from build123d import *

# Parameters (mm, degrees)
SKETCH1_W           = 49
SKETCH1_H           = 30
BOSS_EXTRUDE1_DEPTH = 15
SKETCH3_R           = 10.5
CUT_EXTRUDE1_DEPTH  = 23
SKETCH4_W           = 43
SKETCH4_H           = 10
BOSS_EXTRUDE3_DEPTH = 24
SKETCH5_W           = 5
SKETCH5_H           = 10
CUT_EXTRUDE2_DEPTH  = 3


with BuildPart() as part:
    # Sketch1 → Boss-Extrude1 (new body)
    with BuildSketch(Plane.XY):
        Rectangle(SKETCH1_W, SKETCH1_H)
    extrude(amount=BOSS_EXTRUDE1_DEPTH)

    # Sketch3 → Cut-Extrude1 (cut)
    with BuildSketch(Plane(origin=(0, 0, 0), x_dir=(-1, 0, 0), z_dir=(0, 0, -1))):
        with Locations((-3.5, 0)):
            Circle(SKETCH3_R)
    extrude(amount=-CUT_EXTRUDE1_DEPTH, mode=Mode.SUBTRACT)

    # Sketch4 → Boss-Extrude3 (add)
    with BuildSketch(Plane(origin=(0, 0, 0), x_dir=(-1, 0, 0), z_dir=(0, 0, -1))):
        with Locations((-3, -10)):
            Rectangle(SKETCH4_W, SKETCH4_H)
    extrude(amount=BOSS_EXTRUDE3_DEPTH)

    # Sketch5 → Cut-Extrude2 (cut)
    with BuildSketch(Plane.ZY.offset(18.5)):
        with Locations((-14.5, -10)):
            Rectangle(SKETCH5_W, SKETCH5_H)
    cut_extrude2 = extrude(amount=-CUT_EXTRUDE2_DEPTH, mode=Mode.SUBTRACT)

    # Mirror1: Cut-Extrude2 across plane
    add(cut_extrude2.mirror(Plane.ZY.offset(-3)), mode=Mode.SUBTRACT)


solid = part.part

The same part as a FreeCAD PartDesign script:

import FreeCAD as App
import Part
import Sketcher

V = App.Vector
Q = App.Units.Quantity

doc = App.newDocument("Part")
body = doc.addObject("PartDesign::Body", "Body")

# Sketch on XY plane
sketch1 = body.newObject("Sketcher::SketchObject", "Sketch")
sketch1.AttachmentSupport = (doc.getObject("XY_Plane"), [""])
sketch1.MapMode = "FlatFace"
sketch1.addGeometry([
    Part.LineSegment(V(-24, 15, 0), V(-24, -15, 0)),
    Part.LineSegment(V(-24, -15, 0), V(24, -15, 0)),
    Part.LineSegment(V(24, -15, 0), V(24, 15, 0)),
    Part.LineSegment(V(24, 15, 0), V(-24, 15, 0)),
], False)
sketch1.addConstraint([
    Sketcher.Constraint("Coincident", 0, 2, 1, 1),
    Sketcher.Constraint("Coincident", 1, 2, 2, 1),
    Sketcher.Constraint("Coincident", 2, 2, 3, 1),
    Sketcher.Constraint("Coincident", 3, 2, 0, 1),
    Sketcher.Constraint("Vertical", 0),
    Sketcher.Constraint("Horizontal", 1),
    Sketcher.Constraint("Vertical", 2),
    Sketcher.Constraint("Horizontal", 3),
    Sketcher.Constraint("Symmetric", 0, 2, 2, 2, -1, 1),
    Sketcher.Constraint("DistanceX", 1, 1, 1, 2, Q("49 mm")),
    Sketcher.Constraint("DistanceY", 0, 2, 0, 1, Q("30 mm")),
])
pad1 = body.newObject("PartDesign::Pad", "Pad")
pad1.Profile = sketch1
pad1.Length = 15

# Sketch on XY plane
sketch2 = body.newObject("Sketcher::SketchObject", "Sketch001")
sketch2.AttachmentSupport = (doc.getObject("XY_Plane"), [""])
sketch2.MapMode = "FlatFace"
sketch2.addGeometry(Part.Circle(V(4, 0, 0), V(0, 0, 1), 10), False)
sketch2.addConstraint([
    Sketcher.Constraint("PointOnObject", 0, 3, -1),
    Sketcher.Constraint("Diameter", 0, Q("21 mm")),
    Sketcher.Constraint("DistanceX", -1, 1, 0, 3, Q("3.5 mm")),
])
pocket1 = body.newObject("PartDesign::Pocket", "Pocket")
pocket1.Profile = sketch2
pocket1.Length = 23
pocket1.Reversed = True

# Sketch on XY plane
sketch3 = body.newObject("Sketcher::SketchObject", "Sketch002")
sketch3.AttachmentSupport = (doc.getObject("XY_Plane"), [""])
sketch3.MapMode = "FlatFace"
sketch3.addGeometry([
    Part.LineSegment(V(24, -5, 0), V(24, -15, 0)),
    Part.LineSegment(V(24, -15, 0), V(-18, -15, 0)),
    Part.LineSegment(V(-18, -15, 0), V(-18, -5, 0)),
    Part.LineSegment(V(-18, -5, 0), V(24, -5, 0)),
], False)
sketch3.addConstraint([
    Sketcher.Constraint("Coincident", 0, 2, 1, 1),
    Sketcher.Constraint("Coincident", 1, 2, 2, 1),
    Sketcher.Constraint("Coincident", 2, 2, 3, 1),
    Sketcher.Constraint("Coincident", 3, 2, 0, 1),
    Sketcher.Constraint("Vertical", 0),
    Sketcher.Constraint("Horizontal", 1),
    Sketcher.Constraint("Vertical", 2),
    Sketcher.Constraint("Horizontal", 3),
    Sketcher.Constraint("DistanceX", 1, 2, 1, 1, Q("43 mm")),
    Sketcher.Constraint("DistanceY", 0, 2, 0, 1, Q("10 mm")),
    Sketcher.Constraint("DistanceY", 0, 2, -1, 1, Q("15 mm")),
    Sketcher.Constraint("DistanceX", -1, 1, 0, 2, Q("24.5 mm")),
])
pad2 = body.newObject("PartDesign::Pad", "Pad001")
pad2.Profile = sketch3
pad2.Length = 24
pad2.Reversed = True

# Sketch on YZ plane
sketch4 = body.newObject("Sketcher::SketchObject", "Sketch003")
sketch4.AttachmentSupport = (doc.getObject("YZ_Plane"), [""])
sketch4.MapMode = "FlatFace"
sketch4.AttachmentOffset = App.Placement(V(0, 0, -18.5), App.Rotation())
sketch4.addGeometry([
    Part.LineSegment(V(-5, -17, 0), V(-15, -17, 0)),
    Part.LineSegment(V(-15, -17, 0), V(-15, -12, 0)),
    Part.LineSegment(V(-15, -12, 0), V(-5, -12, 0)),
    Part.LineSegment(V(-5, -12, 0), V(-5, -17, 0)),
], False)
sketch4.addConstraint([
    Sketcher.Constraint("Coincident", 0, 2, 1, 1),
    Sketcher.Constraint("Coincident", 1, 2, 2, 1),
    Sketcher.Constraint("Coincident", 2, 2, 3, 1),
    Sketcher.Constraint("Coincident", 3, 2, 0, 1),
    Sketcher.Constraint("Horizontal", 0),
    Sketcher.Constraint("Vertical", 1),
    Sketcher.Constraint("Horizontal", 2),
    Sketcher.Constraint("Vertical", 3),
    Sketcher.Constraint("DistanceX", 0, 2, 0, 1, Q("10 mm")),
    Sketcher.Constraint("DistanceY", 1, 1, 1, 2, Q("5 mm")),
    Sketcher.Constraint("DistanceX", 0, 2, -1, 1, Q("15 mm")),
    Sketcher.Constraint("DistanceY", 0, 2, -1, 1, Q("17 mm")),
])
pocket2 = body.newObject("PartDesign::Pocket", "Pocket001")
pocket2.Profile = sketch4
pocket2.Length = 3
pocket2.Reversed = True
doc.recompute()

datumplane = body.newObject("PartDesign::Plane", "DatumPlane")
datumplane.AttachmentSupport = (doc.getObject("YZ_Plane"), [""])
datumplane.MapMode = "FlatFace"
datumplane.AttachmentOffset = App.Placement(V(0, 0, 3), App.Rotation())
mirrored = body.newObject("PartDesign::Mirrored", "Mirrored")
mirrored.Originals = [pocket2]
mirrored.MirrorPlane = (datumplane, [""])
body.Tip = mirrored

doc.recompute()
